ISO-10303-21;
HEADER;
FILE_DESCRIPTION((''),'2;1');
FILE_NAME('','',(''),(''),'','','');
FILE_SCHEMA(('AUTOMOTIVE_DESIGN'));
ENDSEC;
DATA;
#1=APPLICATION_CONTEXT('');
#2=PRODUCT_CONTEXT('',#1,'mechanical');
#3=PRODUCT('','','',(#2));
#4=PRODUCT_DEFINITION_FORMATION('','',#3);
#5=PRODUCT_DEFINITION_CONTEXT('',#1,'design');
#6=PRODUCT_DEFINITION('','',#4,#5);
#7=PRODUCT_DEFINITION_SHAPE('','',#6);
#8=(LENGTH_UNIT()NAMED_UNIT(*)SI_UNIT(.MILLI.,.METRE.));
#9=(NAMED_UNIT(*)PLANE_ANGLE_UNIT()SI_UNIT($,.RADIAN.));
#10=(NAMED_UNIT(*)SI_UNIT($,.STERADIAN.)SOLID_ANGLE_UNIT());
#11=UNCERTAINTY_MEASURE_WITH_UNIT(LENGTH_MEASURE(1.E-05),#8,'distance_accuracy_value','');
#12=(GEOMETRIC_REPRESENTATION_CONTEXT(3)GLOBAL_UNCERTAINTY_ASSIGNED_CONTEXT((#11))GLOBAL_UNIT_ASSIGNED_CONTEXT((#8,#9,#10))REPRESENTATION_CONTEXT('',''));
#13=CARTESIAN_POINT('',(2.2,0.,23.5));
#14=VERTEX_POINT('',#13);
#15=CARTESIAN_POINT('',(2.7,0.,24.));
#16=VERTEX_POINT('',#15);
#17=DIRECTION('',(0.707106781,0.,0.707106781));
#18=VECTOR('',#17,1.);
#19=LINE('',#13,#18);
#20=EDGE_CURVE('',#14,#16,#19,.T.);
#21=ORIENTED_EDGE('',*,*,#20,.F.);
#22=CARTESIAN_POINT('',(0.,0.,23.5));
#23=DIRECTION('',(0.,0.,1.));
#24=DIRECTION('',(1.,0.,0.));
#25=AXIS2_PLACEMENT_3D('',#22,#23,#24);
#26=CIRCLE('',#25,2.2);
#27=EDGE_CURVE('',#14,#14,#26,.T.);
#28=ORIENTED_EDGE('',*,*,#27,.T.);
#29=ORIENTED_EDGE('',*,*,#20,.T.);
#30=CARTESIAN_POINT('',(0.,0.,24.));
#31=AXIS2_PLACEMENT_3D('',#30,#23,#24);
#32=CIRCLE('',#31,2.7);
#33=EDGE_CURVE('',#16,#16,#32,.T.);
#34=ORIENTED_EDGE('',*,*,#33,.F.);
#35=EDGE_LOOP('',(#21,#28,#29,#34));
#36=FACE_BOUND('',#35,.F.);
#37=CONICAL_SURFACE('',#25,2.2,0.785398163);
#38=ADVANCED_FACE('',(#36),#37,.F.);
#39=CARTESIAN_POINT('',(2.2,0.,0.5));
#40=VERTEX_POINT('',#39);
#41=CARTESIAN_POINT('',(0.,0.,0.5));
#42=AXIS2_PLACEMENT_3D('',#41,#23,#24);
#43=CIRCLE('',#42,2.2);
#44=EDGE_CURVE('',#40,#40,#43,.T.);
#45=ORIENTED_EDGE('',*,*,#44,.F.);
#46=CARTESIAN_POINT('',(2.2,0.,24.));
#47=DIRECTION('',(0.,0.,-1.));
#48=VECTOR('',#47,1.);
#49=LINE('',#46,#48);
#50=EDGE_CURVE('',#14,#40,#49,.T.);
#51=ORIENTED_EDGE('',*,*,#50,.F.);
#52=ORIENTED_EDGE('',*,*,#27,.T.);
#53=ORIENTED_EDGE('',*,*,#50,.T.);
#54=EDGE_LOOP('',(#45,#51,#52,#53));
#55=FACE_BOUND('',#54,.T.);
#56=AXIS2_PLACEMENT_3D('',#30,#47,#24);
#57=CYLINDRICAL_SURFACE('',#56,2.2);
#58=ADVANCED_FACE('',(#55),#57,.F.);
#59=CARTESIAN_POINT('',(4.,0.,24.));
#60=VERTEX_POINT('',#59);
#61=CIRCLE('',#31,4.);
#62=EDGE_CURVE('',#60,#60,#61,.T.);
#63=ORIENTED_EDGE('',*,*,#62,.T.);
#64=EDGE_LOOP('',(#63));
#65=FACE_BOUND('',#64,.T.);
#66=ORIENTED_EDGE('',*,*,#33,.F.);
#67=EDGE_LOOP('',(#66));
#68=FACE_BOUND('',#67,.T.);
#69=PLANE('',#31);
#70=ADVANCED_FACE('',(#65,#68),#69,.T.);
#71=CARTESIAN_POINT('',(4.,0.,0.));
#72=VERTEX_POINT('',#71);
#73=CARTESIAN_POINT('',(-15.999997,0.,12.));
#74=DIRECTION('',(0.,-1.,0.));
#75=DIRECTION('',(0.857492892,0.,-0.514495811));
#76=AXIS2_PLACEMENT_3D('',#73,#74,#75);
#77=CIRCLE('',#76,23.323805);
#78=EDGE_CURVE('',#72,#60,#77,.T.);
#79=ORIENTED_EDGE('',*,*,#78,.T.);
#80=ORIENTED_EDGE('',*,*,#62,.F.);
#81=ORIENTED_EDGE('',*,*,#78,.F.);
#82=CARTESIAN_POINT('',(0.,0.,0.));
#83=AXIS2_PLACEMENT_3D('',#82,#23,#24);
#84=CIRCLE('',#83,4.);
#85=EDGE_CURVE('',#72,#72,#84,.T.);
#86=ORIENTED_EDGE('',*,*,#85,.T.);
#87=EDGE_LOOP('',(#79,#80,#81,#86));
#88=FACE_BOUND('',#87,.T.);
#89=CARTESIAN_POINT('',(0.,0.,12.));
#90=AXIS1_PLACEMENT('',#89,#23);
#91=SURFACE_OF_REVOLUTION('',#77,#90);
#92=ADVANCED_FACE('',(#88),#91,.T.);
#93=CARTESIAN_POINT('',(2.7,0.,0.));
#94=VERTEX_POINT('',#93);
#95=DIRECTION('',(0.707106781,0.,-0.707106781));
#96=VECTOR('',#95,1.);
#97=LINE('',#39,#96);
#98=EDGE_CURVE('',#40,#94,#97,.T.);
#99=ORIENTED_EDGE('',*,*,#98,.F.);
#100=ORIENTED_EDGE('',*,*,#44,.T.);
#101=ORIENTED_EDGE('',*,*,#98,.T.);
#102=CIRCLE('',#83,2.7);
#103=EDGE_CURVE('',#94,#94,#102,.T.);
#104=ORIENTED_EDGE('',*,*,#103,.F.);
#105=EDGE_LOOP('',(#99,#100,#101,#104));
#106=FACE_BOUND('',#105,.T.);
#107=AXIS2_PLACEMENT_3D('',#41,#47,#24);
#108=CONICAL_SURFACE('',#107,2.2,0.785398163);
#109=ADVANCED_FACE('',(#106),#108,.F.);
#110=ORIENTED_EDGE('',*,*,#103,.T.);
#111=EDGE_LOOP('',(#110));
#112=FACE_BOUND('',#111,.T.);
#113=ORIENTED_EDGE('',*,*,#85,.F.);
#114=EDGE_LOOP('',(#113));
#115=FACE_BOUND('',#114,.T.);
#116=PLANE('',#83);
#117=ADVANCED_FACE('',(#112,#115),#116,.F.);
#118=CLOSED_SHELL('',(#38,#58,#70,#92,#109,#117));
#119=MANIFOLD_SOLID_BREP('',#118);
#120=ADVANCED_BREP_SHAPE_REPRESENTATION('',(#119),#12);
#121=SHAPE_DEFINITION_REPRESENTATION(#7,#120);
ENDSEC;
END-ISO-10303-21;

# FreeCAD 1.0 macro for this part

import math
import FreeCAD as App
import Part
import Sketcher
from FreeCAD import Vector


def edges_at(feature, points):
    """Names of the edges that pass closest to the given points."""
    edges = feature.Shape.Edges
    near = lambda p: min(range(len(edges)), key=lambda i: edges[i].distToShape(Part.Vertex(*p))[0])
    return sorted({f"Edge{near(p) + 1}" for p in points})

doc = App.newDocument("Part")
body = doc.addObject("PartDesign::Body", "Body")

sketch1 = body.newObject("Sketcher::SketchObject", "Sketch")
sketch1.AttachmentSupport = (doc.getObject("XZ_Plane"), [""])
sketch1.MapMode = "FlatFace"
sketch1.addGeometry([
    Part.LineSegment(Vector(2.2, 24, 0), Vector(2.2, 0, 0)),
    Part.LineSegment(Vector(2.2, 0, 0), Vector(4, 0, 0)),
    Part.ArcOfCircle(Part.Circle(Vector(-16, 12, 0), Vector(0, 0, 1), 23.3), math.radians(-31), math.radians(31)),
    Part.LineSegment(Vector(4, 24, 0), Vector(2.2, 24, 0)),
], False)
sketch1.addConstraint([
    Sketcher.Constraint("Coincident", 0, 2, 1, 1),
    Sketcher.Constraint("Coincident", 1, 2, 2, 1),
    Sketcher.Constraint("Coincident", 2, 2, 3, 1),
    Sketcher.Constraint("Coincident", 3, 2, 0, 1),
    Sketcher.Constraint("Vertical", 0),
    Sketcher.Constraint("Horizontal", 1),
    Sketcher.Constraint("Horizontal", 3),
    Sketcher.Constraint("PointOnObject", 0, 2, -1),
    Sketcher.Constraint("Vertical", 1, 2, 2, 2),
    Sketcher.Constraint("DistanceY", 0, 2, 0, 1, 24.0),
    Sketcher.Constraint("DistanceX", 1, 1, 1, 2, 1.8),
    Sketcher.Constraint("DistanceX", -1, 1, 1, 2, 4.0),
    Sketcher.Constraint("Radius", 2, 23.323805),
])
revolution = body.newObject("PartDesign::Revolution", "Revolution")
revolution.Profile = sketch1
revolution.ReferenceAxis = (sketch1, ["V_Axis"])
revolution.Angle = 360
doc.recompute()

chamfer = body.newObject("PartDesign::Chamfer", "Chamfer")
chamfer.Base = (revolution, edges_at(revolution, [(-2.2, 0, 24), (-2.2, 0, 0)]))
chamfer.Size = 0.5

doc.recompute()
